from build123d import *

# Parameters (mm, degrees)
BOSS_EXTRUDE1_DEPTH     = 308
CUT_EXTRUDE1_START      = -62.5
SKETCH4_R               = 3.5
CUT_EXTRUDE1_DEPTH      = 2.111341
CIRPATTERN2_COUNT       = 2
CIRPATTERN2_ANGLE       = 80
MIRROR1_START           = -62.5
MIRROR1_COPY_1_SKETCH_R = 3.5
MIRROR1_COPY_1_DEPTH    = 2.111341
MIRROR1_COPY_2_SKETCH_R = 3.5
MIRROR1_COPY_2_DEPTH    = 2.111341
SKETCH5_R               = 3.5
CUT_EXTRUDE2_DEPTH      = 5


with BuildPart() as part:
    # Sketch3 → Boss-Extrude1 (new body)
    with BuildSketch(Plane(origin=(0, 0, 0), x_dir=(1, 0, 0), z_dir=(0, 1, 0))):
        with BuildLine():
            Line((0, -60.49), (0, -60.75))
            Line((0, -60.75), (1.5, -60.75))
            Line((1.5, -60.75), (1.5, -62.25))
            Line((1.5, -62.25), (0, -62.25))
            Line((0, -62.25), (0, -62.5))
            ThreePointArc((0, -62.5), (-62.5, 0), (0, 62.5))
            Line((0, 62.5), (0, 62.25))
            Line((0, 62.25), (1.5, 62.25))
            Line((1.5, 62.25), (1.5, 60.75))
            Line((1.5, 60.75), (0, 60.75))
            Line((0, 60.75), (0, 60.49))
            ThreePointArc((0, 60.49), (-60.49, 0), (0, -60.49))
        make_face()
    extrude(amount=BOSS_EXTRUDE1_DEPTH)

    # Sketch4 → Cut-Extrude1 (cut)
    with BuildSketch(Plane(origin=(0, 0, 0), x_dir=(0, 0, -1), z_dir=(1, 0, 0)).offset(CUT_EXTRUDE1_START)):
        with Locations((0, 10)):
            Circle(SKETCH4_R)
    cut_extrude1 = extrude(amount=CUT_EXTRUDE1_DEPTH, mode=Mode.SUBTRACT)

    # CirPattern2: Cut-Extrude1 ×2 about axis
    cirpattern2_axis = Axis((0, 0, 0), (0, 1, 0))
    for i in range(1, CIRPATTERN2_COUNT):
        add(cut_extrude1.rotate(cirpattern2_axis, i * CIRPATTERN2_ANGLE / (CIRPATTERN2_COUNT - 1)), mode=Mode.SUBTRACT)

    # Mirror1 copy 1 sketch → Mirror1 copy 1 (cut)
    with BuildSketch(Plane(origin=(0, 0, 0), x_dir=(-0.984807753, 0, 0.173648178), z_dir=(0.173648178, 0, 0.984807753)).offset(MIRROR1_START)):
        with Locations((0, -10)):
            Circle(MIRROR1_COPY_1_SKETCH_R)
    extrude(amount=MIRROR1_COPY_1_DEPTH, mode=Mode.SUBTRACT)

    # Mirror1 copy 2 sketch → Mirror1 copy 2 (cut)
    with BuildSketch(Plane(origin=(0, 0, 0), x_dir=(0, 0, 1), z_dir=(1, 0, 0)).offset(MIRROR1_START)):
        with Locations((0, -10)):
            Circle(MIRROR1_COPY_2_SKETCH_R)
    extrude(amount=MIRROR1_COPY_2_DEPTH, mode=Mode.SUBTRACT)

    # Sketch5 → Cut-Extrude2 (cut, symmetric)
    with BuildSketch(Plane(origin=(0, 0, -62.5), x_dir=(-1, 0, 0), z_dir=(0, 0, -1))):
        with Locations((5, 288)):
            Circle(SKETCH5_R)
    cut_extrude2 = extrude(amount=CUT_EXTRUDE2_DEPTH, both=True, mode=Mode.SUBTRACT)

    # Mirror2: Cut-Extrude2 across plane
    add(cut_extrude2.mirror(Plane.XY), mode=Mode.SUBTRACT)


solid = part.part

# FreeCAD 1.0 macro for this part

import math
import FreeCAD as App
import Part
import Sketcher

doc = App.newDocument("Part")
params = doc.addObject("Spreadsheet::Sheet", "Params")
for row, (alias, value) in enumerate([
    ("sketch1_radius", "62.5 mm"),
    ("sketch1_radius2", "60.49 mm"),
    ("sketch1_width", "1.5 mm"),
    ("sketch1_height", "0.26 mm"),
    ("pad1_length", "308 mm"),
    ("sketch2_diameter", "7 mm"),
    ("pocket1_length", "2.111341 mm"),
    ("sketch3_diameter", "7 mm"),
    ("pocket2_length", "2.111341 mm"),
    ("sketch4_diameter", "7 mm"),
    ("pocket3_length", "2.111341 mm"),
    ("sketch5_diameter", "7 mm"),
    ("pocket4_length", "10 mm"),
], start=1):
    params.set(f"A{row}", alias)
    params.set(f"B{row}", "=" + value)
    params.setAlias(f"B{row}", alias)

body = doc.addObject("PartDesign::Body", "Body")

# Sketch on XZ plane
sketch1 = body.newObject("Sketcher::SketchObject", "Sketch")
sketch1.AttachmentSupport = (doc.getObject("XZ_Plane"), [""])
sketch1.MapMode = "FlatFace"
sketch1.addGeometry([
    Part.LineSegment(App.Vector(0, 60.75, 0), App.Vector(0, 60.49, 0)),  # 0
    Part.ArcOfCircle(Part.Circle(App.Vector(0, 0, 0), App.Vector(0, 0, 1), 60.49), math.radians(90), math.radians(270)),  # 1
    Part.LineSegment(App.Vector(0, -60.49, 0), App.Vector(0, -60.75, 0)),  # 2
    Part.LineSegment(App.Vector(0, -60.75, 0), App.Vector(1.5, -60.75, 0)),  # 3
    Part.LineSegment(App.Vector(1.5, -60.75, 0), App.Vector(1.5, -62.25, 0)),  # 4
    Part.LineSegment(App.Vector(1.5, -62.25, 0), App.Vector(0, -62.25, 0)),  # 5
    Part.LineSegment(App.Vector(0, -62.25, 0), App.Vector(0, -62.5, 0)),  # 6
    Part.ArcOfCircle(Part.Circle(App.Vector(0, 0, 0), App.Vector(0, 0, 1), 62.5), math.radians(90), math.radians(270)),  # 7
    Part.LineSegment(App.Vector(0, 62.5, 0), App.Vector(0, 62.25, 0)),  # 8
    Part.LineSegment(App.Vector(0, 62.25, 0), App.Vector(1.5, 62.25, 0)),  # 9
    Part.LineSegment(App.Vector(1.5, 62.25, 0), App.Vector(1.5, 60.75, 0)),  # 10
    Part.LineSegment(App.Vector(1.5, 60.75, 0), App.Vector(0, 60.75, 0)),  # 11
], False)
sketch1.addConstraint([
    Sketcher.Constraint("Coincident", 0, 2, 1, 1),
    Sketcher.Constraint("Coincident", 1, 2, 2, 1),
    Sketcher.Constraint("Coincident", 2, 2, 3, 1),
    Sketcher.Constraint("Coincident", 3, 2, 4, 1),
    Sketcher.Constraint("Coincident", 4, 2, 5, 1),
    Sketcher.Constraint("Coincident", 5, 2, 6, 1),
    Sketcher.Constraint("Coincident", 6, 2, 7, 2),
    Sketcher.Constraint("Coincident", 7, 1, 8, 1),
    Sketcher.Constraint("Coincident", 8, 2, 9, 1),
    Sketcher.Constraint("Coincident", 9, 2, 10, 1),
    Sketcher.Constraint("Coincident", 10, 2, 11, 1),
    Sketcher.Constraint("Coincident", 11, 2, 0, 1),
    Sketcher.Constraint("Vertical", 0),
    Sketcher.Constraint("Vertical", 2),
    Sketcher.Constraint("Horizontal", 3),
    Sketcher.Constraint("Vertical", 4),
    Sketcher.Constraint("Horizontal", 5),
    Sketcher.Constraint("Vertical", 6),
    Sketcher.Constraint("Vertical", 8),
    Sketcher.Constraint("Horizontal", 9),
    Sketcher.Constraint("Vertical", 10),
    Sketcher.Constraint("Horizontal", 11),
    Sketcher.Constraint("Coincident", 1, 3, -1, 1),
    Sketcher.Constraint("Coincident", 7, 3, -1, 1),
    Sketcher.Constraint("Symmetric", 5, 2, 8, 2, -1, 1),
    Sketcher.Constraint("Symmetric", 2, 2, 11, 2, -1, 1),
    Sketcher.Constraint("PointOnObject", 0, 2, -2),
    Sketcher.Constraint("PointOnObject", 5, 2, -2),
    Sketcher.Constraint("Vertical", 4, 2, 9, 2),
    Sketcher.Constraint("Equal", 11, 4),
    Sketcher.Constraint("Radius", 7, 62.5),
    Sketcher.Constraint("Radius", 1, 60.49),
    Sketcher.Constraint("DistanceX", 3, 1, 3, 2, 1.5),
    Sketcher.Constraint("DistanceY", 0, 2, 0, 1, 0.26),
])
sketch1.setExpression("Constraints[30]", "Params.sketch1_radius")
sketch1.setExpression("Constraints[31]", "Params.sketch1_radius2")
sketch1.setExpression("Constraints[32]", "Params.sketch1_width")
sketch1.setExpression("Constraints[33]", "Params.sketch1_height")
pad1 = body.newObject("PartDesign::Pad", "Pad")
pad1.Profile = sketch1
pad1.setExpression("Length", "Params.pad1_length")
pad1.Reversed = True

# Sketch on YZ plane
sketch2 = body.newObject("Sketcher::SketchObject", "Sketch001")
sketch2.AttachmentSupport = (doc.getObject("YZ_Plane"), [""])
sketch2.MapMode = "FlatFace"
sketch2.AttachmentOffset = App.Placement(App.Vector(0, 0, -62.5), App.Rotation())
sketch2.addGeometry(Part.Circle(App.Vector(10, 0, 0), App.Vector(0, 0, 1), 3.5), False)
sketch2.addConstraint([
    Sketcher.Constraint("PointOnObject", 0, 3, -1),
    Sketcher.Constraint("Diameter", 0, 7.0),
    Sketcher.Constraint("DistanceX", -1, 1, 0, 3, 10.0),
])
sketch2.setExpression("Constraints[1]", "Params.sketch2_diameter")
pocket1 = body.newObject("PartDesign::Pocket", "Pocket")
pocket1.Profile = sketch2
pocket1.setExpression("Length", "Params.pocket1_length")
pocket1.Reversed = True
doc.recompute()

polarpattern = body.newObject("PartDesign::PolarPattern", "PolarPattern")
polarpattern.Originals = [pocket1]
polarpattern.Axis = (doc.getObject("Y_Axis"), [""])
polarpattern.Angle = 80
polarpattern.Occurrences = 2
body.Tip = polarpattern

# Sketch on an angled plane
sketch3 = body.newObject("Sketcher::SketchObject", "Sketch002")
sketch3.Placement = App.Placement(App.Vector(-10.853011, 0, -61.550485), App.Rotation(App.Vector(-0.984807753, 0, 0.173648178), App.Vector(0, -1, 0), App.Vector(0.173648178, 0, 0.984807753), "ZXY"))
sketch3.addGeometry(Part.Circle(App.Vector(0, -10, 0), App.Vector(0, 0, 1), 3.5), False)
sketch3.addConstraint([
    Sketcher.Constraint("PointOnObject", 0, 3, -2),
    Sketcher.Constraint("Diameter", 0, 7.0),
    Sketcher.Constraint("DistanceY", 0, 3, -1, 1, 10.0),
])
sketch3.setExpression("Constraints[1]", "Params.sketch3_diameter")
pocket2 = body.newObject("PartDesign::Pocket", "Pocket001")
pocket2.Profile = sketch3
pocket2.setExpression("Length", "Params.pocket2_length")
pocket2.Reversed = True

# Sketch on YZ plane
sketch4 = body.newObject("Sketcher::SketchObject", "Sketch003")
sketch4.AttachmentSupport = (doc.getObject("YZ_Plane"), [""])
sketch4.MapMode = "FlatFace"
sketch4.AttachmentOffset = App.Placement(App.Vector(0, 0, -62.5), App.Rotation())
sketch4.addGeometry(Part.Circle(App.Vector(10, 0, 0), App.Vector(0, 0, 1), 3.5), False)
sketch4.addConstraint([
    Sketcher.Constraint("PointOnObject", 0, 3, -1),
    Sketcher.Constraint("Diameter", 0, 7.0),
    Sketcher.Constraint("DistanceX", -1, 1, 0, 3, 10.0),
])
sketch4.setExpression("Constraints[1]", "Params.sketch4_diameter")
pocket3 = body.newObject("PartDesign::Pocket", "Pocket002")
pocket3.Profile = sketch4
pocket3.setExpression("Length", "Params.pocket3_length")
pocket3.Reversed = True

# Sketch on XY plane
sketch5 = body.newObject("Sketcher::SketchObject", "Sketch004")
sketch5.AttachmentSupport = (doc.getObject("XY_Plane"), [""])
sketch5.MapMode = "FlatFace"
sketch5.AttachmentOffset = App.Placement(App.Vector(0, 0, -62.5), App.Rotation())
sketch5.addGeometry(Part.Circle(App.Vector(-5, 288, 0), App.Vector(0, 0, 1), 3.5), False)
sketch5.addConstraint([
    Sketcher.Constraint("Diameter", 0, 7.0),
    Sketcher.Constraint("DistanceX", 0, 3, -1, 1, 5.0),
    Sketcher.Constraint("DistanceY", -1, 1, 0, 3, 288.0),
])
sketch5.setExpression("Constraints[0]", "Params.sketch5_diameter")
pocket4 = body.newObject("PartDesign::Pocket", "Pocket003")
pocket4.Profile = sketch5
pocket4.setExpression("Length", "Params.pocket4_length")
pocket4.Midplane = True
doc.recompute()

mirrored = body.newObject("PartDesign::Mirrored", "Mirrored")
mirrored.Originals = [pocket4]
mirrored.MirrorPlane = (doc.getObject("XY_Plane"), [""])
body.Tip = mirrored

doc.recompute()
